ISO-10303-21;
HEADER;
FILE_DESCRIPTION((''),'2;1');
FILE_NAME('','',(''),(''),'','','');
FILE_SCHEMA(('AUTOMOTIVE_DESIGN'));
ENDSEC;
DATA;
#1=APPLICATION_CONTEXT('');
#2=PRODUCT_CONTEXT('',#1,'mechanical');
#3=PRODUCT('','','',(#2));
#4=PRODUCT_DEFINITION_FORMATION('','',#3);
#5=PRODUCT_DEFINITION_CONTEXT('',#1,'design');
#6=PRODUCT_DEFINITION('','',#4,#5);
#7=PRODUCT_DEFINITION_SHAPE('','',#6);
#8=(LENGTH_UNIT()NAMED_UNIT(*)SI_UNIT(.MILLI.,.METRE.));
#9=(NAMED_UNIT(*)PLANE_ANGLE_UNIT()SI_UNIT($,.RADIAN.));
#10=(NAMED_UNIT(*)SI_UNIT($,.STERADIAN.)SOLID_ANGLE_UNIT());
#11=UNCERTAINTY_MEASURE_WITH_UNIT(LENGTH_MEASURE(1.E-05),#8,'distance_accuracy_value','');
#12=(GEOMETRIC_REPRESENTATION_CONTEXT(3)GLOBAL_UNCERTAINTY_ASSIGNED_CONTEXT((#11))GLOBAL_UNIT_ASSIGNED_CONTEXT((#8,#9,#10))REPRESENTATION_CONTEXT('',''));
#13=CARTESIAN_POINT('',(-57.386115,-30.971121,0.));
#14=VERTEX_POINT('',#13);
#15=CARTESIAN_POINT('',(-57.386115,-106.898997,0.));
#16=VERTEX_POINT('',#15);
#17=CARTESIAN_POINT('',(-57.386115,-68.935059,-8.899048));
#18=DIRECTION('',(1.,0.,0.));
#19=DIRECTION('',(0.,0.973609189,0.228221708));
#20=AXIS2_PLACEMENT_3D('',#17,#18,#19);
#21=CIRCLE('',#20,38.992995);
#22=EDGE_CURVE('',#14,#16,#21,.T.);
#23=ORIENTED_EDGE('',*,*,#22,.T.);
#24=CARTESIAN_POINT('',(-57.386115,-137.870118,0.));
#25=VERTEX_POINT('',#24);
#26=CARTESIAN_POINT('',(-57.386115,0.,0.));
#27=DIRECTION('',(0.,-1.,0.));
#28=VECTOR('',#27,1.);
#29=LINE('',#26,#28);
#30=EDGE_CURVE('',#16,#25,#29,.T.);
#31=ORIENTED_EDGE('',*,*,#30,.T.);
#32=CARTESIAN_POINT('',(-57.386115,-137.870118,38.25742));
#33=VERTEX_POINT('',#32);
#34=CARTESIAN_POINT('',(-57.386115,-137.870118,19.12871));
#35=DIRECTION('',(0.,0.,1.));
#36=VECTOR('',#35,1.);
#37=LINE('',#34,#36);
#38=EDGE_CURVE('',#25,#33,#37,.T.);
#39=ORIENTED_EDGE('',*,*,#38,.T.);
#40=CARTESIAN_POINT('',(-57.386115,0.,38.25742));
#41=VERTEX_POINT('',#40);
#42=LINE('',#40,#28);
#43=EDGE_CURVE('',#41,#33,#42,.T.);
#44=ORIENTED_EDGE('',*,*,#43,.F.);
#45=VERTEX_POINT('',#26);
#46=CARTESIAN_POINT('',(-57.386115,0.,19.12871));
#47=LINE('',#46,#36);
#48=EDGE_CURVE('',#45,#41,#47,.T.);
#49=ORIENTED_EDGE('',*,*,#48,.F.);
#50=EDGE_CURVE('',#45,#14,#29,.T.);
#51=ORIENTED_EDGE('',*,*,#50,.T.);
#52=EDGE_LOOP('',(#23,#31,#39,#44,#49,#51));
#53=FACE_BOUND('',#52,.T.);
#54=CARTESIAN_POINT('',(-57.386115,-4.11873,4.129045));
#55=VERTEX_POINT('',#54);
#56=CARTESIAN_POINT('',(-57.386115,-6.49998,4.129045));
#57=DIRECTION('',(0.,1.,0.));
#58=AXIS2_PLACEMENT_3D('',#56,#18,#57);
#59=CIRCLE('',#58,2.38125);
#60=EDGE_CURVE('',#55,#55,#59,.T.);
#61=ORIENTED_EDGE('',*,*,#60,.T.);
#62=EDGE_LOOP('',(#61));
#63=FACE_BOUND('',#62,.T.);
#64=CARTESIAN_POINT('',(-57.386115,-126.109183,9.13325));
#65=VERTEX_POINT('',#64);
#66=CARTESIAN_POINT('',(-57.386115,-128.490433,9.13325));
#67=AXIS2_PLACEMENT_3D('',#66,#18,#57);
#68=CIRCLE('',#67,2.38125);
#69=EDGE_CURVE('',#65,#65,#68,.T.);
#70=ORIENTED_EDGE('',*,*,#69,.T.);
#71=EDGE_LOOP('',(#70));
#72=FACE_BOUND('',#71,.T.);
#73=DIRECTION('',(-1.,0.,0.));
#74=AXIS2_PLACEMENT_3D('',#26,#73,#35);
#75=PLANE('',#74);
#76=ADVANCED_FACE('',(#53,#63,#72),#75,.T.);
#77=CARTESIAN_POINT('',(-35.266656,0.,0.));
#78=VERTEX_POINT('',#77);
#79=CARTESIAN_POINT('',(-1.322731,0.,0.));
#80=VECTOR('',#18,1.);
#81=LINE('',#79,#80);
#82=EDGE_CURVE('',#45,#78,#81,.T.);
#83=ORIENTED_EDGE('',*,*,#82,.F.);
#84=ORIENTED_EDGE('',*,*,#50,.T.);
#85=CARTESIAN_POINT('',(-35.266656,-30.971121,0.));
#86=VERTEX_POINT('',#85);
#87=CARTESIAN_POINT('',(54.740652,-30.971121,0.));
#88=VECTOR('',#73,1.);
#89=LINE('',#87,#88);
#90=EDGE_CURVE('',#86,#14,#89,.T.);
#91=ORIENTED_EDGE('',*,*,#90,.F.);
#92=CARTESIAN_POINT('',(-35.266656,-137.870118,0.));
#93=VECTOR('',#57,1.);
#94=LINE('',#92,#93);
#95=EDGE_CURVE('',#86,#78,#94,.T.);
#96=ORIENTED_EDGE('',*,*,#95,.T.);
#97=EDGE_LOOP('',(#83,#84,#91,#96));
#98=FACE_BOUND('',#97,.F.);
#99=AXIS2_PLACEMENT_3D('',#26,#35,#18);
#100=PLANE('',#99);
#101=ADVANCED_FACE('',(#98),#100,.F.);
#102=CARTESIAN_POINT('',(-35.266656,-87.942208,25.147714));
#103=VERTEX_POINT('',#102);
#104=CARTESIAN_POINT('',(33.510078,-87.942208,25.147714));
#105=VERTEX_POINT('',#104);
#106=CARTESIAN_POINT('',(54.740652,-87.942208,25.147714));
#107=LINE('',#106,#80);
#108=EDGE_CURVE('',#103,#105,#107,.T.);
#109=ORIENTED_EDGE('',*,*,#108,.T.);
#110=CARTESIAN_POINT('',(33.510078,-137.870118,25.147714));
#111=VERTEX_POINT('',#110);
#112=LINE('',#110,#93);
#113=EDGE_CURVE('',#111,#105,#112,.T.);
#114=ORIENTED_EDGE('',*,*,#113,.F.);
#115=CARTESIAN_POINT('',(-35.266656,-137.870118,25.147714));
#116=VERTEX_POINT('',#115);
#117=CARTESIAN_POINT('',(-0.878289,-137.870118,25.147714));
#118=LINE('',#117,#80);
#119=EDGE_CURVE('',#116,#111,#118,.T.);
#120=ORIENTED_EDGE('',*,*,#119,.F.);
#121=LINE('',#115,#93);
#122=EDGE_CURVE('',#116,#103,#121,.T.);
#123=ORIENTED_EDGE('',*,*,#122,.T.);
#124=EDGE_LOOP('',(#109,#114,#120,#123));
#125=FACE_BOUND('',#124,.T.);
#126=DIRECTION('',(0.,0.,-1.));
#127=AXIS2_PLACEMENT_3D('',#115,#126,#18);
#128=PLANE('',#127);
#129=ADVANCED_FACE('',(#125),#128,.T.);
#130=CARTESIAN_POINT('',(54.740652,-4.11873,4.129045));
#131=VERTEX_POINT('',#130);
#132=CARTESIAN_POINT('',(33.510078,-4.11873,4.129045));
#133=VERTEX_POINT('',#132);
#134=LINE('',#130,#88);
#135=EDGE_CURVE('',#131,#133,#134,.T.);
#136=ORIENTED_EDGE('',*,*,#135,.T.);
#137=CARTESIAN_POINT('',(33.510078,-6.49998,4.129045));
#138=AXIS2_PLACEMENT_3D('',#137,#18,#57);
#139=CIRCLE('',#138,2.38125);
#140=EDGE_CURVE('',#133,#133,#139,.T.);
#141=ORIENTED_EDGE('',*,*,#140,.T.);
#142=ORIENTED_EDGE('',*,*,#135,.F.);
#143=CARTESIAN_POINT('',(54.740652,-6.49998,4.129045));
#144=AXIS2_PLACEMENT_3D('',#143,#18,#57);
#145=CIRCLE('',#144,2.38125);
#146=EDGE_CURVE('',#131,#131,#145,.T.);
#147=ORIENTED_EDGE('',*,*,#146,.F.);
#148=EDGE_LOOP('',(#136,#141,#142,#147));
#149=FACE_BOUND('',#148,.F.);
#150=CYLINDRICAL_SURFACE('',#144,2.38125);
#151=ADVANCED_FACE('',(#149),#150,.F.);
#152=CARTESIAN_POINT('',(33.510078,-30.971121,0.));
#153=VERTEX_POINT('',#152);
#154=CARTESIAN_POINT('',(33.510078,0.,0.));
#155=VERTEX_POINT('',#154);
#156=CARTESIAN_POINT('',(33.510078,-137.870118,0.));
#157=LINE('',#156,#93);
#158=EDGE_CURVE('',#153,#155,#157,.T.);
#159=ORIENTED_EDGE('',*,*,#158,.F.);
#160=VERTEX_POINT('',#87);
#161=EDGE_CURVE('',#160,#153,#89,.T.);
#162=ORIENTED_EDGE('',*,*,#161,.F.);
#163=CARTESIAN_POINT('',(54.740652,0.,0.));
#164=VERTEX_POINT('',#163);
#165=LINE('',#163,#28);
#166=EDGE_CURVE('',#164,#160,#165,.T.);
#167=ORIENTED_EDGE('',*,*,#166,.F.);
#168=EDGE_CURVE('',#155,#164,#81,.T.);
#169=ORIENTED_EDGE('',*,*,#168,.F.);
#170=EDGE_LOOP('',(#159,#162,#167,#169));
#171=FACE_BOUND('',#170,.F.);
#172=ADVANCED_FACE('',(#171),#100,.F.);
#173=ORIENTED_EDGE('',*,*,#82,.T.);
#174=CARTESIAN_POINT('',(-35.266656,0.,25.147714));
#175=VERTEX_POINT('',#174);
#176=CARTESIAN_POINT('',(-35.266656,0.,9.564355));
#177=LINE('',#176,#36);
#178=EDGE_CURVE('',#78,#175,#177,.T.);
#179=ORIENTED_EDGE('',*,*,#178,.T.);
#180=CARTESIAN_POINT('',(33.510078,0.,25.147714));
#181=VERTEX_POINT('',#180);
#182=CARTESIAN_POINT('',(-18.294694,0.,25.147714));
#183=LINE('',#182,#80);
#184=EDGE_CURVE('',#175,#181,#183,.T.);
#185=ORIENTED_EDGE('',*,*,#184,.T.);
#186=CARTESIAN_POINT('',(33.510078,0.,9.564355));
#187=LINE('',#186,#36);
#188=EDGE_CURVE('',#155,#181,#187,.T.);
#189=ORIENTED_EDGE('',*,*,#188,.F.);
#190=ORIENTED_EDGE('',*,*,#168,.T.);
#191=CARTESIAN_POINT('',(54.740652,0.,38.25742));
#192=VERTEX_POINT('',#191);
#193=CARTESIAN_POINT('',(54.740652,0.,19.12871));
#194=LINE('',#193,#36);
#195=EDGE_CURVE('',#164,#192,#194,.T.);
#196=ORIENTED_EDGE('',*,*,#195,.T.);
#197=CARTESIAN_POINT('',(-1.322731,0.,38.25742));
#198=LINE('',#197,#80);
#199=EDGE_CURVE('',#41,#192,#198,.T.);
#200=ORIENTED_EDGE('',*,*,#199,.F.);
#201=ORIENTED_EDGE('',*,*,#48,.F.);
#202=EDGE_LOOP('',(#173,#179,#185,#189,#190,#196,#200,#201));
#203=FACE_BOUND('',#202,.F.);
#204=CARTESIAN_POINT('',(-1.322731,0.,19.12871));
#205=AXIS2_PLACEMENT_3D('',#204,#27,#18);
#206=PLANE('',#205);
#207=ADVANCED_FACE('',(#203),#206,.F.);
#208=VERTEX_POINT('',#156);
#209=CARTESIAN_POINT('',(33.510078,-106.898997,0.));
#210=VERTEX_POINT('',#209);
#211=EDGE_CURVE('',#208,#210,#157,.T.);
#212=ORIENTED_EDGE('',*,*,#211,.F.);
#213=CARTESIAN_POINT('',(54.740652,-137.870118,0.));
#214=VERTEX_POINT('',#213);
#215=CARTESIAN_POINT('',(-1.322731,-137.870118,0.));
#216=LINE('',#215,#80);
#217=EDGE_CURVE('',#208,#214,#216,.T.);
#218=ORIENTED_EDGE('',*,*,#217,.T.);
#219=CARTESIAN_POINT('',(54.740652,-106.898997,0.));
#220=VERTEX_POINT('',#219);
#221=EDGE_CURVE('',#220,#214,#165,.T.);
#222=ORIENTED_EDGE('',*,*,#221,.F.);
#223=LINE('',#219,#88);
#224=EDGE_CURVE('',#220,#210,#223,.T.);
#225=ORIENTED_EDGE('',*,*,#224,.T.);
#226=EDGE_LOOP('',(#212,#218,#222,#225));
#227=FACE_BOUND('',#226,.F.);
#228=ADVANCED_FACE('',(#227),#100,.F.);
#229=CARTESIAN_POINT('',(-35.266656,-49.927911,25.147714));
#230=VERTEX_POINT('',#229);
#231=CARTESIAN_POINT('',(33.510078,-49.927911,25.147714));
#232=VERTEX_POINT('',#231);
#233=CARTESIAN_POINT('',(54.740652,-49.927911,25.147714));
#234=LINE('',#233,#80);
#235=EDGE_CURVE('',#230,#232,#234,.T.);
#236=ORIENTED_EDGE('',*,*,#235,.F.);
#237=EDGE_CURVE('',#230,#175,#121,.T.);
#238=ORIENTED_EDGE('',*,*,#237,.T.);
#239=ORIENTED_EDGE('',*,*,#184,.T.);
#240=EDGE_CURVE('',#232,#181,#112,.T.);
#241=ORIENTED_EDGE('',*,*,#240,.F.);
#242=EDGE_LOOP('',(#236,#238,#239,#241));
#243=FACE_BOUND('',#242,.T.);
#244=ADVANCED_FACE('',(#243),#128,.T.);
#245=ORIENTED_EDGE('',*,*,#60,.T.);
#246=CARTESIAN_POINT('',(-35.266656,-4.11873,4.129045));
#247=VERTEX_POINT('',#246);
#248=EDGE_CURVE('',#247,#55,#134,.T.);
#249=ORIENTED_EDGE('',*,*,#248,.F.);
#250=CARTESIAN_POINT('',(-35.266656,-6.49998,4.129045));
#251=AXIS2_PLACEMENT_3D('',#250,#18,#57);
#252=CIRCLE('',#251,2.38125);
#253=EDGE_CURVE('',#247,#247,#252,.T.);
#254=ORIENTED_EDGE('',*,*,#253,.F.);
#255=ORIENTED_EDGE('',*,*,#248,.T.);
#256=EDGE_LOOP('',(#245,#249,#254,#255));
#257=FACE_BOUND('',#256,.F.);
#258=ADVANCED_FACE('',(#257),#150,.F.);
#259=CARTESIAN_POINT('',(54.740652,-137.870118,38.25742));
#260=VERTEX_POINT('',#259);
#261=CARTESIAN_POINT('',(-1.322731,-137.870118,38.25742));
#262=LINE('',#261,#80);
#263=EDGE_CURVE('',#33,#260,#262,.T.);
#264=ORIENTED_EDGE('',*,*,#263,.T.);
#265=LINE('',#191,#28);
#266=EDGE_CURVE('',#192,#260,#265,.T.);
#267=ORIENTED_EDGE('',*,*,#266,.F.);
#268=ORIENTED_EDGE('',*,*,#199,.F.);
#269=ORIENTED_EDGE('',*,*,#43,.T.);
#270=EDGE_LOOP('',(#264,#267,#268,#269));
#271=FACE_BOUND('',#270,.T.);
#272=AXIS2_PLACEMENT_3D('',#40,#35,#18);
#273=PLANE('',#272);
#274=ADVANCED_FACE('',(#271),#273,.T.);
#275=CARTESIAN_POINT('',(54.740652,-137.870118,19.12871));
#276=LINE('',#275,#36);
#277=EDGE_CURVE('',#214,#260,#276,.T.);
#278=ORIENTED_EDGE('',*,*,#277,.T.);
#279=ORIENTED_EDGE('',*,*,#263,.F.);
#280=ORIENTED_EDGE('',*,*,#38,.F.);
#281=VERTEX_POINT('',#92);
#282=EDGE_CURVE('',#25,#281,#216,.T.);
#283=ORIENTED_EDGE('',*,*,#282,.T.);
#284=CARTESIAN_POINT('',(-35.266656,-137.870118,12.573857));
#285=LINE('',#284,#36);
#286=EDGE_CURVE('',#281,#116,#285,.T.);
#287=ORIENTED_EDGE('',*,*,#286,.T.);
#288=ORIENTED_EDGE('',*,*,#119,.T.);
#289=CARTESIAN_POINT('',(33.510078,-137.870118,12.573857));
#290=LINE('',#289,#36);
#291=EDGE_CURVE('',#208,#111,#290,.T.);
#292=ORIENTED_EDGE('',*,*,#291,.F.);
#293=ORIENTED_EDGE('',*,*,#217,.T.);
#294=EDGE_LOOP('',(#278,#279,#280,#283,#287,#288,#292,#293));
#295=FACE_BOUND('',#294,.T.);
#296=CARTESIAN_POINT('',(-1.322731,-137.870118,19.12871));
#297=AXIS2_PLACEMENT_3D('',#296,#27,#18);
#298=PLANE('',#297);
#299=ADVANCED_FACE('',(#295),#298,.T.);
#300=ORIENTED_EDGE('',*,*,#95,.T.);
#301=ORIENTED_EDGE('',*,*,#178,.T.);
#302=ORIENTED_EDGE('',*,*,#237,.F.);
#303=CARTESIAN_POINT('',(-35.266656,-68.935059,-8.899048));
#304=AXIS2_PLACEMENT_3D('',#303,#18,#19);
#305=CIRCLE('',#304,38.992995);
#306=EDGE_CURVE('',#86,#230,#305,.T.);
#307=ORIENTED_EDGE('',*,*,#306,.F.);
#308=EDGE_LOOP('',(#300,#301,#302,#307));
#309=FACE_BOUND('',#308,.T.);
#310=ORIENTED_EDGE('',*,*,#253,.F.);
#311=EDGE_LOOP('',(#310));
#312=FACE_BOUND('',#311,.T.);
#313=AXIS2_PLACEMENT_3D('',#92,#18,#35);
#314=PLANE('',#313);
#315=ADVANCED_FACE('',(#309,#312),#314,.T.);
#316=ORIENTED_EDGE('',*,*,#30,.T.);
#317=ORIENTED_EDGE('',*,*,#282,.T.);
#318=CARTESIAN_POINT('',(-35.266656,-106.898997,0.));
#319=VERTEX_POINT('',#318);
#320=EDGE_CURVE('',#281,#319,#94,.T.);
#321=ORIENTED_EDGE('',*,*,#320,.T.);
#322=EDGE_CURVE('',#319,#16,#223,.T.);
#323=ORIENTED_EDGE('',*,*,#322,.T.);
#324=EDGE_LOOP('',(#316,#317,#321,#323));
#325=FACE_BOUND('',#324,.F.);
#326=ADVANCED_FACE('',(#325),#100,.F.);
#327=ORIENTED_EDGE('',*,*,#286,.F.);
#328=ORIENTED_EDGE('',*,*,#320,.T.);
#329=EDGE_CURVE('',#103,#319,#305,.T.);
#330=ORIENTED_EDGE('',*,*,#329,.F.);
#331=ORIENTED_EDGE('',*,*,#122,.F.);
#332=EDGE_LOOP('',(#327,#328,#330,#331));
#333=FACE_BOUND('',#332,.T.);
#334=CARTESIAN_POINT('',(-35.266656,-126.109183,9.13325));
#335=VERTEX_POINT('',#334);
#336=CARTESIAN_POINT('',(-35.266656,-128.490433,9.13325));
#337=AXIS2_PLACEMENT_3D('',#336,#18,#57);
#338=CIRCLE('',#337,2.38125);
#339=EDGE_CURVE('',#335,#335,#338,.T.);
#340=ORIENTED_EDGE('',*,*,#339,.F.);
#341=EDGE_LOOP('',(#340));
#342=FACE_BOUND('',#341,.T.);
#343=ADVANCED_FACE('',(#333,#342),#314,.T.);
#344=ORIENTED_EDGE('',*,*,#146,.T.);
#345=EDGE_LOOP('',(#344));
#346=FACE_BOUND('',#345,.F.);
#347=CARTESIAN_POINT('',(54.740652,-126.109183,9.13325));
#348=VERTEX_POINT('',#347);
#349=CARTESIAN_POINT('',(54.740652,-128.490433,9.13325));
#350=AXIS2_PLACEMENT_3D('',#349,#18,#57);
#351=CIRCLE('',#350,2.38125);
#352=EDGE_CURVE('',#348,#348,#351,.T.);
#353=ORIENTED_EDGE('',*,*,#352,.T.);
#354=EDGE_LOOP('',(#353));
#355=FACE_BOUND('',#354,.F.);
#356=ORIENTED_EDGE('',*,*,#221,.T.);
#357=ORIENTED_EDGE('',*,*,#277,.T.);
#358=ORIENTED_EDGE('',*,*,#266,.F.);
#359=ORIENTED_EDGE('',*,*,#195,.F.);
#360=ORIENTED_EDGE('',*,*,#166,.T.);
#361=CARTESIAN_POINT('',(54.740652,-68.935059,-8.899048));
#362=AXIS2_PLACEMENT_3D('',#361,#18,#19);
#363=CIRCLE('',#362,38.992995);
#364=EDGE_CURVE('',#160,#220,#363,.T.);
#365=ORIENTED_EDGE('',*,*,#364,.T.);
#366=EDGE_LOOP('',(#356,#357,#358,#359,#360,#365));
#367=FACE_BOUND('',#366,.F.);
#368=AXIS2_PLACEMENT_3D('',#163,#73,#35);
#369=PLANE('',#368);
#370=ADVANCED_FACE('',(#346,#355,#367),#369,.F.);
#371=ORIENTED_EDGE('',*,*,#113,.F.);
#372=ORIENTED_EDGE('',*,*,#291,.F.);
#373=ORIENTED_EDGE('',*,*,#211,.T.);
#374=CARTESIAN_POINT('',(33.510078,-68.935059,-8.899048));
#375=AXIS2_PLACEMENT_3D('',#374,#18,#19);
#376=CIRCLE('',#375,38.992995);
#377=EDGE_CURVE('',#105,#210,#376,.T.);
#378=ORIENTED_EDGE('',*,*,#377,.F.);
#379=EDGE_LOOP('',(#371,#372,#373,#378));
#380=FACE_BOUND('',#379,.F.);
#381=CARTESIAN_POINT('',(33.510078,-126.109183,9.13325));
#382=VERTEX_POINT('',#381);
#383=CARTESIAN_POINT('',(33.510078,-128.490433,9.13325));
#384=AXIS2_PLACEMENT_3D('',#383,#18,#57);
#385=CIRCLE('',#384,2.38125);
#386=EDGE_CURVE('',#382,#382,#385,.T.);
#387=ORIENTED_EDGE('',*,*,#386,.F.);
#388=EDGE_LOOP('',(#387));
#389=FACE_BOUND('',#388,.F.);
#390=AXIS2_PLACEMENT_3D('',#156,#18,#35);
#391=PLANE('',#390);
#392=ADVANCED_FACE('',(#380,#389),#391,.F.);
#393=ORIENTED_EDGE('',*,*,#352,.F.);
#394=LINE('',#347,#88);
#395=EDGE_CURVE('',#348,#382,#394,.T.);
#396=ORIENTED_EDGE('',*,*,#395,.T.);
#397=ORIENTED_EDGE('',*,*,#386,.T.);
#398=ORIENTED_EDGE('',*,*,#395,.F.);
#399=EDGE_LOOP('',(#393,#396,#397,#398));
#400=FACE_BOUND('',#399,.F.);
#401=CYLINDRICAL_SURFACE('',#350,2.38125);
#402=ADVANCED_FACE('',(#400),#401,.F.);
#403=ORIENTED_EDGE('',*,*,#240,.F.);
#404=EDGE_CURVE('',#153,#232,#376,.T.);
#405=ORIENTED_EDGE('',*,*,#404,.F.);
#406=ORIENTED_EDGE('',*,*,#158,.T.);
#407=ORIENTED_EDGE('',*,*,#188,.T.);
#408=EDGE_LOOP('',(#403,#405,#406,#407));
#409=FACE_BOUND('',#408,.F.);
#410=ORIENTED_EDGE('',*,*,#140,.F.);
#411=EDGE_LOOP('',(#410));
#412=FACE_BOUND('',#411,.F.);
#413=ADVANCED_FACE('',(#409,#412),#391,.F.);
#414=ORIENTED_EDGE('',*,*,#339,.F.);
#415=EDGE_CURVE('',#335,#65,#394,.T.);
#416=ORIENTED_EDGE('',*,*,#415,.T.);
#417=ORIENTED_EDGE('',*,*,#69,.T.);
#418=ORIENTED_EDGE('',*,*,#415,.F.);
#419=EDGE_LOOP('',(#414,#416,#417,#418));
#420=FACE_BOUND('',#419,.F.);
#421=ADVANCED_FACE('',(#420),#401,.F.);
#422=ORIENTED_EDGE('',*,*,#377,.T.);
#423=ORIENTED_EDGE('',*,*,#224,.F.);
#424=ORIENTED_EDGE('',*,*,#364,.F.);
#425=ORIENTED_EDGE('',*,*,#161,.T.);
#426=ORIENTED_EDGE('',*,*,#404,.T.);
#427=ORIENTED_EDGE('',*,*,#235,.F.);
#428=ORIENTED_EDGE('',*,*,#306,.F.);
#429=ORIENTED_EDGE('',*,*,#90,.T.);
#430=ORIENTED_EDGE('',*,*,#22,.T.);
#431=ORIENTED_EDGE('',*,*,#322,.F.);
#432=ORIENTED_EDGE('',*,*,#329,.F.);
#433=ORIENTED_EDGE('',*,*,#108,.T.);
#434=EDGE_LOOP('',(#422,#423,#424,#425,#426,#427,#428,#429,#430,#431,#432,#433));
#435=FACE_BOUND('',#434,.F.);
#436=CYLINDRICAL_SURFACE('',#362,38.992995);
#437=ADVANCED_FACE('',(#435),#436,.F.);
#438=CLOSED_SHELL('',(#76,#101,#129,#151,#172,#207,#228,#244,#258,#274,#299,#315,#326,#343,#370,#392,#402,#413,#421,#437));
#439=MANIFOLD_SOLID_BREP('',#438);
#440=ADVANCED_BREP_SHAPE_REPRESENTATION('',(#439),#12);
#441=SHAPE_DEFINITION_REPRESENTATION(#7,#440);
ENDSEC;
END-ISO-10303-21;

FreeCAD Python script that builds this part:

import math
import FreeCAD as App
import Part
import Sketcher
from FreeCAD import Vector
Q = App.Units.Quantity


def add_polygon(sketch, points):
    """Adds a closed chain of lines whose ends are joined by coincident constraints."""
    first, n = sketch.GeometryCount, len(points)
    for a, b in zip(points, points[1:] + points[:1]):
        sketch.addGeometry(Part.LineSegment(App.Vector(*a, 0), App.Vector(*b, 0)), False)
    for i in range(n):
        sketch.addConstraint(Sketcher.Constraint("Coincident", first + i, 2, first + (i + 1) % n, 1))

doc = App.newDocument("Part")
body = doc.addObject("PartDesign::Body", "Body")

# Sketch on XZ plane
sketch1 = body.newObject("Sketcher::SketchObject", "Sketch")
sketch1.AttachmentSupport = (doc.getObject("XZ_Plane"), [""])
sketch1.MapMode = "FlatFace"
add_polygon(sketch1, [(-57, 38), (-57, 0), (55, 0), (55, 38)])  # lines 0-3
sketch1.addConstraint(Sketcher.Constraint("Vertical", 0))
sketch1.addConstraint(Sketcher.Constraint("Horizontal", 1))
sketch1.addConstraint(Sketcher.Constraint("Vertical", 2))
sketch1.addConstraint(Sketcher.Constraint("Horizontal", 3))
sketch1.addConstraint(Sketcher.Constraint("PointOnObject", 0, 2, -1))
sketch1.addConstraint(Sketcher.Constraint("DistanceY", 0, 2, 0, 1, 38.25742))
sketch1.addConstraint(Sketcher.Constraint("DistanceX", 1, 1, 1, 2, 112.126768))
sketch1.addConstraint(Sketcher.Constraint("DistanceX", 0, 2, -1, 1, 57.386115))
pad1 = body.newObject("PartDesign::Pad", "Pad")
pad1.Profile = sketch1
pad1.Length = 137.870118

# Sketch on XZ plane
sketch2 = body.newObject("Sketcher::SketchObject", "Sketch001")
sketch2.AttachmentSupport = (doc.getObject("XZ_Plane"), [""])
sketch2.MapMode = "FlatFace"
sketch2.AttachmentOffset = App.Placement(Vector(0, 0, 137.870118), App.Rotation())
add_polygon(sketch2, [(-35, 25), (-35, 0), (34, 0), (34, 25)])  # lines 0-3
sketch2.addConstraint(Sketcher.Constraint("Vertical", 0))
sketch2.addConstraint(Sketcher.Constraint("Horizontal", 1))
sketch2.addConstraint(Sketcher.Constraint("Vertical", 2))
sketch2.addConstraint(Sketcher.Constraint("Horizontal", 3))
sketch2.addConstraint(Sketcher.Constraint("PointOnObject", 0, 2, -1))
sketch2.addConstraint(Sketcher.Constraint("DistanceX", 1, 1, 1, 2, 68.776734))
sketch2.addConstraint(Sketcher.Constraint("DistanceY", 0, 2, 0, 1, 25.147714))
sketch2.addConstraint(Sketcher.Constraint("DistanceX", 0, 2, -1, 1, 35.266656))
pocket1 = body.newObject("PartDesign::Pocket", "Pocket")
pocket1.Profile = sketch2
pocket1.Type = "ThroughAll"

# Sketch on YZ plane
sketch3 = body.newObject("Sketcher::SketchObject", "Sketch002")
sketch3.AttachmentSupport = (doc.getObject("YZ_Plane"), [""])
sketch3.MapMode = "FlatFace"
sketch3.AttachmentOffset = App.Placement(Vector(0, 0, 54.740652), App.Rotation())
sketch3.addGeometry(Part.Circle(Vector(-128.5, 9.1, 0), Vector(0, 0, 1), 2.4), False)
sketch3.addConstraint(Sketcher.Constraint("Diameter", 0, Q("0.1875 in")))
sketch3.addConstraint(Sketcher.Constraint("DistanceY", -1, 1, 0, 3, 9.13325))
sketch3.addConstraint(Sketcher.Constraint("DistanceX", 0, 3, -1, 1, 128.490433))
pocket2 = body.newObject("PartDesign::Pocket", "Pocket001")
pocket2.Profile = sketch3
pocket2.Type = "ThroughAll"

# Sketch on YZ plane
sketch4 = body.newObject("Sketcher::SketchObject", "Sketch003")
sketch4.AttachmentSupport = (doc.getObject("YZ_Plane"), [""])
sketch4.MapMode = "FlatFace"
sketch4.AttachmentOffset = App.Placement(Vector(0, 0, 54.740652), App.Rotation())
sketch4.addGeometry(Part.Circle(Vector(-6.5, 4.1, 0), Vector(0, 0, 1), 2.4), False)
sketch4.addConstraint(Sketcher.Constraint("Diameter", 0, Q("0.1875 in")))
sketch4.addConstraint(Sketcher.Constraint("DistanceX", 0, 3, -1, 1, 6.49998))
sketch4.addConstraint(Sketcher.Constraint("DistanceY", -1, 1, 0, 3, 4.129045))
pocket3 = body.newObject("PartDesign::Pocket", "Pocket002")
pocket3.Profile = sketch4
pocket3.Type = "ThroughAll"

# Sketch on YZ plane
sketch5 = body.newObject("Sketcher::SketchObject", "Sketch004")
sketch5.AttachmentSupport = (doc.getObject("YZ_Plane"), [""])
sketch5.MapMode = "FlatFace"
sketch5.AttachmentOffset = App.Placement(Vector(0, 0, 54.740652), App.Rotation())
sketch5.addGeometry(Part.LineSegment(Vector(-107, 0, 0), Vector(-31, 0, 0)), False)
sketch5.addGeometry(Part.ArcOfCircle(Part.Circle(Vector(-69, -9, 0), Vector(0, 0, 1), 39), math.radians(13), math.radians(167)), False)
sketch5.addConstraint(Sketcher.Constraint("Coincident", 0, 1, 1, 2))
sketch5.addConstraint(Sketcher.Constraint("Coincident", 1, 1, 0, 2))
sketch5.addConstraint(Sketcher.Constraint("Horizontal", 0))
sketch5.addConstraint(Sketcher.Constraint("PointOnObject", 0, 1, -1))
sketch5.addConstraint(Sketcher.Constraint("Radius", 1, 38.992995))
sketch5.addConstraint(Sketcher.Constraint("DistanceX", 0, 1, 0, 2, 75.927877))
sketch5.addConstraint(Sketcher.Constraint("DistanceX", 1, 3, -1, 1, 68.935059))
pocket4 = body.newObject("PartDesign::Pocket", "Pocket003")
pocket4.Profile = sketch5
pocket4.Type = "ThroughAll"

doc.recompute()
